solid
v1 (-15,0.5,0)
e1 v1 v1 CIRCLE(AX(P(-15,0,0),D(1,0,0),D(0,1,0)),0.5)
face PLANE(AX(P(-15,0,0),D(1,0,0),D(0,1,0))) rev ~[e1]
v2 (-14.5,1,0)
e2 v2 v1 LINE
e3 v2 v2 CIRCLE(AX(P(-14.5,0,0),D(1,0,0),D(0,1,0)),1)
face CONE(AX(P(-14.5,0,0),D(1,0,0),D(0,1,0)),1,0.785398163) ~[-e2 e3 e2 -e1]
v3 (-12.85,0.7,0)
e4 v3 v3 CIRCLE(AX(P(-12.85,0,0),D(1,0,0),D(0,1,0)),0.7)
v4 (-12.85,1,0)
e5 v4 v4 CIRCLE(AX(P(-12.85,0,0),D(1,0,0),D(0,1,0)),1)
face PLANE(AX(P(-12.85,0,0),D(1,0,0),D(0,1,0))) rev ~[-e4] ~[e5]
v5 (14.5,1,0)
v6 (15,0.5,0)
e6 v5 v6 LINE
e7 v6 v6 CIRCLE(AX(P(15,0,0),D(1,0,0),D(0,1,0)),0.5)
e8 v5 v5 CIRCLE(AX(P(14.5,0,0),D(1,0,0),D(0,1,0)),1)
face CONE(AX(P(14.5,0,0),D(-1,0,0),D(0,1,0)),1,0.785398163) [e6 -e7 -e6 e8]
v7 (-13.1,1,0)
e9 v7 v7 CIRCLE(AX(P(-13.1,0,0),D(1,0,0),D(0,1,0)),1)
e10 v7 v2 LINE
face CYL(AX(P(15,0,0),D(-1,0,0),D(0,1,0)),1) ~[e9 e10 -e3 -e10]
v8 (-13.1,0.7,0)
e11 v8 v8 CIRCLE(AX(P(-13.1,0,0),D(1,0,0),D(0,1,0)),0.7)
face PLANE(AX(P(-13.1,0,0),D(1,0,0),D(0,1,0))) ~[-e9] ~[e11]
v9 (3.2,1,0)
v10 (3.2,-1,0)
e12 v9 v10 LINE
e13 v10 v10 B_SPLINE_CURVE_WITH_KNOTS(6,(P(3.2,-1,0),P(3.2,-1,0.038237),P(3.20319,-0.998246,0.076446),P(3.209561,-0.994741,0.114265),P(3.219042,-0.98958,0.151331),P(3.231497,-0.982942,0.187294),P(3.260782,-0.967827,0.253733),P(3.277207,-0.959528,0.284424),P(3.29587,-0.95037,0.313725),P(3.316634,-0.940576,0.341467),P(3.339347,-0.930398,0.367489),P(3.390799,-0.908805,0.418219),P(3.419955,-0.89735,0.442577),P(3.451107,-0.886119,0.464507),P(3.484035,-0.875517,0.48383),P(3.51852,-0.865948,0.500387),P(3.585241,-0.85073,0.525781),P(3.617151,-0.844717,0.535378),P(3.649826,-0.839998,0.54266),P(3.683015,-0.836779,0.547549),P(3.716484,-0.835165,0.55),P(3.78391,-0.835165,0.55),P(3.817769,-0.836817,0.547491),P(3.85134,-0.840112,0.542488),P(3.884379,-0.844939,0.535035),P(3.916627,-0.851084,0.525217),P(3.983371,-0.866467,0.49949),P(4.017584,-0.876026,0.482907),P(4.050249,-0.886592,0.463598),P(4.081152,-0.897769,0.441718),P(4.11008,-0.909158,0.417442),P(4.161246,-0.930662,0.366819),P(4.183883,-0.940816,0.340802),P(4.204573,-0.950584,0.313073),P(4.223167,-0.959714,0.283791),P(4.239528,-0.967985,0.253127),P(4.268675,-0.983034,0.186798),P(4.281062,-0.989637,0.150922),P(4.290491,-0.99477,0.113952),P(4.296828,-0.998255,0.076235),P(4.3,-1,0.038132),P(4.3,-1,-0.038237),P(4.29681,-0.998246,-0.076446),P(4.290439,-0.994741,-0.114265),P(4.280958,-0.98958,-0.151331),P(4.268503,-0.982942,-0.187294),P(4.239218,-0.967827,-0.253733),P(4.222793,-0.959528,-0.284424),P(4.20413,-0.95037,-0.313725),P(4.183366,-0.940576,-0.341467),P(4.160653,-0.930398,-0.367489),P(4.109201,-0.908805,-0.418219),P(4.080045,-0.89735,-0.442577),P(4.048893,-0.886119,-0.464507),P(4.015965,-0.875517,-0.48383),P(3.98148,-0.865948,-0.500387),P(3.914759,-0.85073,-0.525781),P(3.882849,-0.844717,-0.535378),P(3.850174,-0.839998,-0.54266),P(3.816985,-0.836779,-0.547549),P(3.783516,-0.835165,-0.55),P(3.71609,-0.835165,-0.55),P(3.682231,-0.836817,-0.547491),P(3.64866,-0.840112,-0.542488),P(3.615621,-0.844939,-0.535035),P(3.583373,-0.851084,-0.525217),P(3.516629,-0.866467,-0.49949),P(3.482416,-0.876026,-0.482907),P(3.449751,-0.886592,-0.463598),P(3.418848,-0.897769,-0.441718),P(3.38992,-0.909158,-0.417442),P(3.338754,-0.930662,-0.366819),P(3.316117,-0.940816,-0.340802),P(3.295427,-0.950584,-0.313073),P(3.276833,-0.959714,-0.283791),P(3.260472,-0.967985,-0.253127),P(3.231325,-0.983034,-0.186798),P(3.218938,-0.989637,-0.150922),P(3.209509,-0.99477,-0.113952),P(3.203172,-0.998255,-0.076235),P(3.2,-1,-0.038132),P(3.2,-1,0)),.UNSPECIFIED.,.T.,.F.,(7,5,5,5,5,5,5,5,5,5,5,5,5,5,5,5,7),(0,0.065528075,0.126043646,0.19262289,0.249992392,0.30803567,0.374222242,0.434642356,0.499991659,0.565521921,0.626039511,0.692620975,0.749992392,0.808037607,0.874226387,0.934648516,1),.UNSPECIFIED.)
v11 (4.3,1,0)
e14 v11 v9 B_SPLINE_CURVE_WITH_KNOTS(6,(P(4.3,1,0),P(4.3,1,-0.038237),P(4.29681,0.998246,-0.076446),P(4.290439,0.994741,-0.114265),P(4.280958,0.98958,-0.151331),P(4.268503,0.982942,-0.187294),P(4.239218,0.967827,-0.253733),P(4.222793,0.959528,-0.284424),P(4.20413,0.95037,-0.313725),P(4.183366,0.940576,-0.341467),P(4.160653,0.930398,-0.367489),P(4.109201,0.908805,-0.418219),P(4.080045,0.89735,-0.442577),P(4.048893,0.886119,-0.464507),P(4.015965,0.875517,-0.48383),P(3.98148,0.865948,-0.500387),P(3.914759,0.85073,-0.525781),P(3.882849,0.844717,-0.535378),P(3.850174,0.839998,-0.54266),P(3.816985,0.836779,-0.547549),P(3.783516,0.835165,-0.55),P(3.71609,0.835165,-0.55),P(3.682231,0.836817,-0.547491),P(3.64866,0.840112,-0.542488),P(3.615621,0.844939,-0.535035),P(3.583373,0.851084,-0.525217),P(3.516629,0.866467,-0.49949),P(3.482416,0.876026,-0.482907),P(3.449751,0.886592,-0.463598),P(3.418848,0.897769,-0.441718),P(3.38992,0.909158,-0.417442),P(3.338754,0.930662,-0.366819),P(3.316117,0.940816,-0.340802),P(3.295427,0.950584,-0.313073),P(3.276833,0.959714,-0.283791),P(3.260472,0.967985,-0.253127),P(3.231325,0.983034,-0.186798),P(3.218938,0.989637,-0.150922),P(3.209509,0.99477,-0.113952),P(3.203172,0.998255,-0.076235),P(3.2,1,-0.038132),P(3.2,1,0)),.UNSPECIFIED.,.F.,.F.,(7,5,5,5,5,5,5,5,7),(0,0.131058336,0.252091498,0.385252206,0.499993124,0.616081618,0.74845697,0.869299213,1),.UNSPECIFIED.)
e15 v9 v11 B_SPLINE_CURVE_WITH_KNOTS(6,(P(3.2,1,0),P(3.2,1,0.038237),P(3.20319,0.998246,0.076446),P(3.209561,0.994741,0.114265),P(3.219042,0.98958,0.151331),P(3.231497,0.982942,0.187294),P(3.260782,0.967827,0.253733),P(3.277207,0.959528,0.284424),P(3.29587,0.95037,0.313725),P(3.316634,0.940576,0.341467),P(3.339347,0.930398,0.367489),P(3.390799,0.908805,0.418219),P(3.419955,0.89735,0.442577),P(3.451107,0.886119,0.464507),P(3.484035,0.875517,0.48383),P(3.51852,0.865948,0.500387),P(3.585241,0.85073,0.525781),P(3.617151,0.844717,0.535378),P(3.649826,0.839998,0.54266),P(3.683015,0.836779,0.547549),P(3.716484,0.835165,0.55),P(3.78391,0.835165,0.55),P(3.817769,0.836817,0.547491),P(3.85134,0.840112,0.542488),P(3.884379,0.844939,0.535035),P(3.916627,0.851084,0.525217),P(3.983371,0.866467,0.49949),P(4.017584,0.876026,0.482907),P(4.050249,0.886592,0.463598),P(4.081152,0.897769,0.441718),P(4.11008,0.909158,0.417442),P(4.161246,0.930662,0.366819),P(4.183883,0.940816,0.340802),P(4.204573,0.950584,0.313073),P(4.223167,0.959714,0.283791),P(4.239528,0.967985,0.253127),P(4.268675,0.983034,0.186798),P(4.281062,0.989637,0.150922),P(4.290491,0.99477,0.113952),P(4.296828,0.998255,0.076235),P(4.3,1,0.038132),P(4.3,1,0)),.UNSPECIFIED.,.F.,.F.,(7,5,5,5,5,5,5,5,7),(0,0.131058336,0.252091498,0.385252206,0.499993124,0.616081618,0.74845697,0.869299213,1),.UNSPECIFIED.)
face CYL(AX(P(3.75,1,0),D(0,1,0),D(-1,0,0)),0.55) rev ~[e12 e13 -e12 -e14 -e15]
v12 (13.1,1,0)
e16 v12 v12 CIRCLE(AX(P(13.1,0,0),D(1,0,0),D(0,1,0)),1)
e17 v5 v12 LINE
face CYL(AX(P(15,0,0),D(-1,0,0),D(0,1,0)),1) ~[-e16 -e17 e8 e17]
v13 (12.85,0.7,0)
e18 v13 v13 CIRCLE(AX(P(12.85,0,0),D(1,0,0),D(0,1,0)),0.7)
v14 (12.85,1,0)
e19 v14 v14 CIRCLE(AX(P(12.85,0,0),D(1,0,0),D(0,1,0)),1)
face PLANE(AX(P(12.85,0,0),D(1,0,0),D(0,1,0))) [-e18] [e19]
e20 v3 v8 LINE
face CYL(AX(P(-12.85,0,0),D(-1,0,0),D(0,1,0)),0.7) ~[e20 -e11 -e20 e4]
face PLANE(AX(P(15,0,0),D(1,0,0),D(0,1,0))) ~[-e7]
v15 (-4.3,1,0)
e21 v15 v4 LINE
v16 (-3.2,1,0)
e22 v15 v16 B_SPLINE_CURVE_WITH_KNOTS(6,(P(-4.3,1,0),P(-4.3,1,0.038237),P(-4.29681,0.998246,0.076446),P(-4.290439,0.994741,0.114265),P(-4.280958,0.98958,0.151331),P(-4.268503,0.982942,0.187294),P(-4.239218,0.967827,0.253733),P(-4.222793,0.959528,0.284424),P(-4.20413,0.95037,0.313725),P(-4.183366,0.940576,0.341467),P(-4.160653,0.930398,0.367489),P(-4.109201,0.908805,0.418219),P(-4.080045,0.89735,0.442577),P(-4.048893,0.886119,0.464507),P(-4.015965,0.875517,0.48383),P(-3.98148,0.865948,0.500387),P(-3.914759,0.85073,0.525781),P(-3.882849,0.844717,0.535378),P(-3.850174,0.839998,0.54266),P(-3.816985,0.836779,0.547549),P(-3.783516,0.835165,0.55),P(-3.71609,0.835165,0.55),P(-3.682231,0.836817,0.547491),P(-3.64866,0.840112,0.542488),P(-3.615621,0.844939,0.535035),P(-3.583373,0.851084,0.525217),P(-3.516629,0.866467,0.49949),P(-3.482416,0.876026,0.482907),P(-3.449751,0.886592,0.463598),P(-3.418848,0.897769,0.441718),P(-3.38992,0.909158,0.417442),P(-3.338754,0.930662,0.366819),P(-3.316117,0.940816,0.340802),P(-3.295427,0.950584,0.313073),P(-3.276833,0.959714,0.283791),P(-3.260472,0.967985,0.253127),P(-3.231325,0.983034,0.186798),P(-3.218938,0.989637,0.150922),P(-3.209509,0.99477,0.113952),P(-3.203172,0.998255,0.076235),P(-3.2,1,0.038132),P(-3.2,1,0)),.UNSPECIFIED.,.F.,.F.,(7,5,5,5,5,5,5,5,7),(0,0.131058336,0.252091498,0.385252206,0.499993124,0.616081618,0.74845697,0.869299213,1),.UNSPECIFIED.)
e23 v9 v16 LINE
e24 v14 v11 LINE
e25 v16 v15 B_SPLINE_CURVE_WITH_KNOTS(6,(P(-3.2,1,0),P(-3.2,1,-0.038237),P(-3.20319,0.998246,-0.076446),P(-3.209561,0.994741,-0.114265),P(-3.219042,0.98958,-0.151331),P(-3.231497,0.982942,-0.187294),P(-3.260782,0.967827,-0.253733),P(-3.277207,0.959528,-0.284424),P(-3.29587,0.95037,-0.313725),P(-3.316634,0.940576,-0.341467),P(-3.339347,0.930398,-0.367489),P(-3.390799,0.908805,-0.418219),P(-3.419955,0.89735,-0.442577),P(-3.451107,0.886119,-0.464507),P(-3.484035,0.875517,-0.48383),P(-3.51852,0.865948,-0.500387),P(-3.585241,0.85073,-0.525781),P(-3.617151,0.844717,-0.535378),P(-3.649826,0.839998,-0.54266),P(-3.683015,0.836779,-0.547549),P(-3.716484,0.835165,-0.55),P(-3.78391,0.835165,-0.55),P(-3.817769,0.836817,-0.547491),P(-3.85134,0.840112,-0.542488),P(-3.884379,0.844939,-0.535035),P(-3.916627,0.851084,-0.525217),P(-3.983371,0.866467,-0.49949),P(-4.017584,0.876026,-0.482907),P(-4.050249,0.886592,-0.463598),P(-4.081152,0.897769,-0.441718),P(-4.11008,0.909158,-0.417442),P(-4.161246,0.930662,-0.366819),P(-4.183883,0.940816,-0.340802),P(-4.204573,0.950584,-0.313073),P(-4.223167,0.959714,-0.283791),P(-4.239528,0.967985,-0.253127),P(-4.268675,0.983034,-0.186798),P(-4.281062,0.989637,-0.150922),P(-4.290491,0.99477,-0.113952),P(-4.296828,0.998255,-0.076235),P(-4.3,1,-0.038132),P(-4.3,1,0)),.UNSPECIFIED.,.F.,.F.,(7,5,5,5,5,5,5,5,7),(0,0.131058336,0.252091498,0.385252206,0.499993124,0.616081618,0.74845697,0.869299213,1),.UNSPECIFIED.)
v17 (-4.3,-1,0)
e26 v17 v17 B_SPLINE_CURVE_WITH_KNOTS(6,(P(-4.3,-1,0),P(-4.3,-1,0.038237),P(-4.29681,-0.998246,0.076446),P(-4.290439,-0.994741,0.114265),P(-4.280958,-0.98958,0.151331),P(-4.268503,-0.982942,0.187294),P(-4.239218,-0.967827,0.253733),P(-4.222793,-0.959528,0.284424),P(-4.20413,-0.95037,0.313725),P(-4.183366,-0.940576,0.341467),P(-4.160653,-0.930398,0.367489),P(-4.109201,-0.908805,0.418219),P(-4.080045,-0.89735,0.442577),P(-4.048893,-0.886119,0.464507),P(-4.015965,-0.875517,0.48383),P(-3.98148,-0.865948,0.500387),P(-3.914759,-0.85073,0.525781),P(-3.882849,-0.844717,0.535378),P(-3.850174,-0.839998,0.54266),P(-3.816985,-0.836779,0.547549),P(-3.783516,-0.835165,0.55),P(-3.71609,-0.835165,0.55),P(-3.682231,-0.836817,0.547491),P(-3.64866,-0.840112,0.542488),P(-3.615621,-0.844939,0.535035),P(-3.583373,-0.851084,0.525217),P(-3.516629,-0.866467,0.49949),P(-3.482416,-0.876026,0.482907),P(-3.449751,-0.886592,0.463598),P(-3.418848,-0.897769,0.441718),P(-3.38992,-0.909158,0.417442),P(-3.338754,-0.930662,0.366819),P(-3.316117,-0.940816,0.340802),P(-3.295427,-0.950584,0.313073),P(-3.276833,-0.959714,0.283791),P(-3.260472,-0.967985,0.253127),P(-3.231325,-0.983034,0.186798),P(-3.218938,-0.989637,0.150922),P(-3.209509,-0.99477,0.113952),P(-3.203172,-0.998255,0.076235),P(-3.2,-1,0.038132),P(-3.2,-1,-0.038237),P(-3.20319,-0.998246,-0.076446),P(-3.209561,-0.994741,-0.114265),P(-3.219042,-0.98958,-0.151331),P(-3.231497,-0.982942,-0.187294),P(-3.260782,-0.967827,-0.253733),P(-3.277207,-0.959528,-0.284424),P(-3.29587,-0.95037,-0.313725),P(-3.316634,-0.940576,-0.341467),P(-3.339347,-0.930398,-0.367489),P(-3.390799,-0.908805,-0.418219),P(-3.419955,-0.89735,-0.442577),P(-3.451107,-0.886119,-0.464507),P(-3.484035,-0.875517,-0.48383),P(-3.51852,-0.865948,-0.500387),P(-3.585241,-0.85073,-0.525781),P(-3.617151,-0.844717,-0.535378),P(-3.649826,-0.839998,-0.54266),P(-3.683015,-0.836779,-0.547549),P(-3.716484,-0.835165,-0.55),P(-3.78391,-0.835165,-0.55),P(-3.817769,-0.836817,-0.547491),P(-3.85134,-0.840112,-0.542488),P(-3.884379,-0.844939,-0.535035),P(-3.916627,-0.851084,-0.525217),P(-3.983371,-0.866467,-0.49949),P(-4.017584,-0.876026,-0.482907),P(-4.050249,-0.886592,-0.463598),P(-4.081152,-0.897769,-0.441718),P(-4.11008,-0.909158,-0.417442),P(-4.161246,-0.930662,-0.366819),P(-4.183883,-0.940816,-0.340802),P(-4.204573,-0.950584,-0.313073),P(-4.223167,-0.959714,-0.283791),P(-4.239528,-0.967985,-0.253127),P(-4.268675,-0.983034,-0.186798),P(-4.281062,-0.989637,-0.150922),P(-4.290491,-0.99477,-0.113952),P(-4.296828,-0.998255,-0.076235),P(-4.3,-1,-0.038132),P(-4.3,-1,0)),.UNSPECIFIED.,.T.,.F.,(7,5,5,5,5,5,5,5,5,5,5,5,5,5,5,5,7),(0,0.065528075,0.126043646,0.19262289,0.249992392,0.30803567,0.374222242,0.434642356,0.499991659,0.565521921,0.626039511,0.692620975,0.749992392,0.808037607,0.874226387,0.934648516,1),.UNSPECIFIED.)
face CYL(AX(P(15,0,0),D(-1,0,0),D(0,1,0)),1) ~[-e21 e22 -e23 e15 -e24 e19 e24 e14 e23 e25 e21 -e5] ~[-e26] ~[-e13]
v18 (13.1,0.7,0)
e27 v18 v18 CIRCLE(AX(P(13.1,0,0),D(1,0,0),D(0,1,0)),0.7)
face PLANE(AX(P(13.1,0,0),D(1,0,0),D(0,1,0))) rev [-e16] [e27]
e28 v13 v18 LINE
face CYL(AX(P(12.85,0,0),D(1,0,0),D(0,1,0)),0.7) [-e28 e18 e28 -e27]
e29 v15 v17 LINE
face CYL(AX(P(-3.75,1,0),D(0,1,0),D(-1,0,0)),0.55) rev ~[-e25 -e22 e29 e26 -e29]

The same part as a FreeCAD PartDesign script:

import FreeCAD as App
import Part
import Sketcher


def edges_at(feature, points):
    """Names of the edges that pass closest to the given points."""
    edges = feature.Shape.Edges
    near = lambda p: min(range(len(edges)), key=lambda i: edges[i].distToShape(Part.Vertex(*p))[0])
    return sorted({f"Edge{near(p) + 1}" for p in points})


def add_polygon(sketch, points):
    """Adds a closed chain of lines whose ends are joined by coincident constraints."""
    first, n = sketch.GeometryCount, len(points)
    for a, b in zip(points, points[1:] + points[:1]):
        sketch.addGeometry(Part.LineSegment(App.Vector(*a, 0), App.Vector(*b, 0)), False)
    for i in range(n):
        sketch.addConstraint(Sketcher.Constraint("Coincident", first + i, 2, first + (i + 1) % n, 1))

doc = App.newDocument("Part")
body = doc.addObject("PartDesign::Body", "Body")

# Sketch on XY plane
sketch1 = body.newObject("Sketcher::SketchObject", "Sketch")
sketch1.AttachmentSupport = (doc.getObject("XY_Plane"), [""])
sketch1.MapMode = "FlatFace"
add_polygon(sketch1, [(-13.1, 1), (-15, 1), (-15, 0), (15, 0), (15, 1), (13.1, 1), (13.1, 0.7), (12.85, 0.7), (12.85, 1), (-12.85, 1), (-12.85, 0.7), (-13.1, 0.7)])  # lines 0-11
sketch1.addConstraint([
    Sketcher.Constraint("Horizontal", 0),
    Sketcher.Constraint("Vertical", 1),
    Sketcher.Constraint("Horizontal", 2),
    Sketcher.Constraint("Vertical", 3),
    Sketcher.Constraint("Horizontal", 4),
    Sketcher.Constraint("Vertical", 5),
    Sketcher.Constraint("Horizontal", 6),
    Sketcher.Constraint("Vertical", 7),
    Sketcher.Constraint("Horizontal", 8),
    Sketcher.Constraint("Vertical", 9),
    Sketcher.Constraint("Horizontal", 10),
    Sketcher.Constraint("Vertical", 11),
    Sketcher.Constraint("Symmetric", 1, 2, 2, 2, -1, 1),
    Sketcher.Constraint("Symmetric", 6, 2, 9, 2, -2),
    Sketcher.Constraint("Symmetric", 4, 2, 11, 2, -2),
    Sketcher.Constraint("Horizontal", 4, 2, 7, 2),
    Sketcher.Constraint("DistanceX", 2, 1, 2, 2, 30.0),
    Sketcher.Constraint("DistanceY", 1, 2, 1, 1, 1.0),
    Sketcher.Constraint("DistanceX", 8, 2, 8, 1, 25.7),
    Sketcher.Constraint("DistanceY", 5, 2, 5, 1, 0.3),
    Sketcher.Constraint("DistanceX", 6, 2, 6, 1, 0.25),
])
revolution = body.newObject("PartDesign::Revolution", "Revolution")
revolution.Profile = sketch1
revolution.ReferenceAxis = (sketch1, ["H_Axis"])
revolution.Angle = 360

# Sketch on XZ plane
sketch2 = body.newObject("Sketcher::SketchObject", "Sketch001")
sketch2.AttachmentSupport = (doc.getObject("XZ_Plane"), [""])
sketch2.MapMode = "FlatFace"
sketch2.AttachmentOffset = App.Placement(App.Vector(0, 0, -1), App.Rotation())
sketch2.addGeometry([
    Part.Circle(App.Vector(-3.8, 0, 0), App.Vector(0, 0, 1), 0.6),
    Part.Circle(App.Vector(3.8, 0, 0), App.Vector(0, 0, 1), 0.6),
], False)
sketch2.addConstraint([
    Sketcher.Constraint("Equal", 0, 1),
    Sketcher.Constraint("Symmetric", 0, 3, 1, 3, -1, 1),
    Sketcher.Constraint("PointOnObject", 0, 3, -1),
    Sketcher.Constraint("Diameter", 0, 1.1),
    Sketcher.Constraint("DistanceX", 0, 3, 1, 3, 7.5),
])
pocket1 = body.newObject("PartDesign::Pocket", "Pocket")
pocket1.Profile = sketch2
pocket1.Type = "ThroughAll"
pocket1.Reversed = True
doc.recompute()

chamfer = body.newObject("PartDesign::Chamfer", "Chamfer")
chamfer.Base = (pocket1, edges_at(pocket1, [(-15, -1, 0), (15, -1, 0)]))
chamfer.Size = 0.5

doc.recompute()
